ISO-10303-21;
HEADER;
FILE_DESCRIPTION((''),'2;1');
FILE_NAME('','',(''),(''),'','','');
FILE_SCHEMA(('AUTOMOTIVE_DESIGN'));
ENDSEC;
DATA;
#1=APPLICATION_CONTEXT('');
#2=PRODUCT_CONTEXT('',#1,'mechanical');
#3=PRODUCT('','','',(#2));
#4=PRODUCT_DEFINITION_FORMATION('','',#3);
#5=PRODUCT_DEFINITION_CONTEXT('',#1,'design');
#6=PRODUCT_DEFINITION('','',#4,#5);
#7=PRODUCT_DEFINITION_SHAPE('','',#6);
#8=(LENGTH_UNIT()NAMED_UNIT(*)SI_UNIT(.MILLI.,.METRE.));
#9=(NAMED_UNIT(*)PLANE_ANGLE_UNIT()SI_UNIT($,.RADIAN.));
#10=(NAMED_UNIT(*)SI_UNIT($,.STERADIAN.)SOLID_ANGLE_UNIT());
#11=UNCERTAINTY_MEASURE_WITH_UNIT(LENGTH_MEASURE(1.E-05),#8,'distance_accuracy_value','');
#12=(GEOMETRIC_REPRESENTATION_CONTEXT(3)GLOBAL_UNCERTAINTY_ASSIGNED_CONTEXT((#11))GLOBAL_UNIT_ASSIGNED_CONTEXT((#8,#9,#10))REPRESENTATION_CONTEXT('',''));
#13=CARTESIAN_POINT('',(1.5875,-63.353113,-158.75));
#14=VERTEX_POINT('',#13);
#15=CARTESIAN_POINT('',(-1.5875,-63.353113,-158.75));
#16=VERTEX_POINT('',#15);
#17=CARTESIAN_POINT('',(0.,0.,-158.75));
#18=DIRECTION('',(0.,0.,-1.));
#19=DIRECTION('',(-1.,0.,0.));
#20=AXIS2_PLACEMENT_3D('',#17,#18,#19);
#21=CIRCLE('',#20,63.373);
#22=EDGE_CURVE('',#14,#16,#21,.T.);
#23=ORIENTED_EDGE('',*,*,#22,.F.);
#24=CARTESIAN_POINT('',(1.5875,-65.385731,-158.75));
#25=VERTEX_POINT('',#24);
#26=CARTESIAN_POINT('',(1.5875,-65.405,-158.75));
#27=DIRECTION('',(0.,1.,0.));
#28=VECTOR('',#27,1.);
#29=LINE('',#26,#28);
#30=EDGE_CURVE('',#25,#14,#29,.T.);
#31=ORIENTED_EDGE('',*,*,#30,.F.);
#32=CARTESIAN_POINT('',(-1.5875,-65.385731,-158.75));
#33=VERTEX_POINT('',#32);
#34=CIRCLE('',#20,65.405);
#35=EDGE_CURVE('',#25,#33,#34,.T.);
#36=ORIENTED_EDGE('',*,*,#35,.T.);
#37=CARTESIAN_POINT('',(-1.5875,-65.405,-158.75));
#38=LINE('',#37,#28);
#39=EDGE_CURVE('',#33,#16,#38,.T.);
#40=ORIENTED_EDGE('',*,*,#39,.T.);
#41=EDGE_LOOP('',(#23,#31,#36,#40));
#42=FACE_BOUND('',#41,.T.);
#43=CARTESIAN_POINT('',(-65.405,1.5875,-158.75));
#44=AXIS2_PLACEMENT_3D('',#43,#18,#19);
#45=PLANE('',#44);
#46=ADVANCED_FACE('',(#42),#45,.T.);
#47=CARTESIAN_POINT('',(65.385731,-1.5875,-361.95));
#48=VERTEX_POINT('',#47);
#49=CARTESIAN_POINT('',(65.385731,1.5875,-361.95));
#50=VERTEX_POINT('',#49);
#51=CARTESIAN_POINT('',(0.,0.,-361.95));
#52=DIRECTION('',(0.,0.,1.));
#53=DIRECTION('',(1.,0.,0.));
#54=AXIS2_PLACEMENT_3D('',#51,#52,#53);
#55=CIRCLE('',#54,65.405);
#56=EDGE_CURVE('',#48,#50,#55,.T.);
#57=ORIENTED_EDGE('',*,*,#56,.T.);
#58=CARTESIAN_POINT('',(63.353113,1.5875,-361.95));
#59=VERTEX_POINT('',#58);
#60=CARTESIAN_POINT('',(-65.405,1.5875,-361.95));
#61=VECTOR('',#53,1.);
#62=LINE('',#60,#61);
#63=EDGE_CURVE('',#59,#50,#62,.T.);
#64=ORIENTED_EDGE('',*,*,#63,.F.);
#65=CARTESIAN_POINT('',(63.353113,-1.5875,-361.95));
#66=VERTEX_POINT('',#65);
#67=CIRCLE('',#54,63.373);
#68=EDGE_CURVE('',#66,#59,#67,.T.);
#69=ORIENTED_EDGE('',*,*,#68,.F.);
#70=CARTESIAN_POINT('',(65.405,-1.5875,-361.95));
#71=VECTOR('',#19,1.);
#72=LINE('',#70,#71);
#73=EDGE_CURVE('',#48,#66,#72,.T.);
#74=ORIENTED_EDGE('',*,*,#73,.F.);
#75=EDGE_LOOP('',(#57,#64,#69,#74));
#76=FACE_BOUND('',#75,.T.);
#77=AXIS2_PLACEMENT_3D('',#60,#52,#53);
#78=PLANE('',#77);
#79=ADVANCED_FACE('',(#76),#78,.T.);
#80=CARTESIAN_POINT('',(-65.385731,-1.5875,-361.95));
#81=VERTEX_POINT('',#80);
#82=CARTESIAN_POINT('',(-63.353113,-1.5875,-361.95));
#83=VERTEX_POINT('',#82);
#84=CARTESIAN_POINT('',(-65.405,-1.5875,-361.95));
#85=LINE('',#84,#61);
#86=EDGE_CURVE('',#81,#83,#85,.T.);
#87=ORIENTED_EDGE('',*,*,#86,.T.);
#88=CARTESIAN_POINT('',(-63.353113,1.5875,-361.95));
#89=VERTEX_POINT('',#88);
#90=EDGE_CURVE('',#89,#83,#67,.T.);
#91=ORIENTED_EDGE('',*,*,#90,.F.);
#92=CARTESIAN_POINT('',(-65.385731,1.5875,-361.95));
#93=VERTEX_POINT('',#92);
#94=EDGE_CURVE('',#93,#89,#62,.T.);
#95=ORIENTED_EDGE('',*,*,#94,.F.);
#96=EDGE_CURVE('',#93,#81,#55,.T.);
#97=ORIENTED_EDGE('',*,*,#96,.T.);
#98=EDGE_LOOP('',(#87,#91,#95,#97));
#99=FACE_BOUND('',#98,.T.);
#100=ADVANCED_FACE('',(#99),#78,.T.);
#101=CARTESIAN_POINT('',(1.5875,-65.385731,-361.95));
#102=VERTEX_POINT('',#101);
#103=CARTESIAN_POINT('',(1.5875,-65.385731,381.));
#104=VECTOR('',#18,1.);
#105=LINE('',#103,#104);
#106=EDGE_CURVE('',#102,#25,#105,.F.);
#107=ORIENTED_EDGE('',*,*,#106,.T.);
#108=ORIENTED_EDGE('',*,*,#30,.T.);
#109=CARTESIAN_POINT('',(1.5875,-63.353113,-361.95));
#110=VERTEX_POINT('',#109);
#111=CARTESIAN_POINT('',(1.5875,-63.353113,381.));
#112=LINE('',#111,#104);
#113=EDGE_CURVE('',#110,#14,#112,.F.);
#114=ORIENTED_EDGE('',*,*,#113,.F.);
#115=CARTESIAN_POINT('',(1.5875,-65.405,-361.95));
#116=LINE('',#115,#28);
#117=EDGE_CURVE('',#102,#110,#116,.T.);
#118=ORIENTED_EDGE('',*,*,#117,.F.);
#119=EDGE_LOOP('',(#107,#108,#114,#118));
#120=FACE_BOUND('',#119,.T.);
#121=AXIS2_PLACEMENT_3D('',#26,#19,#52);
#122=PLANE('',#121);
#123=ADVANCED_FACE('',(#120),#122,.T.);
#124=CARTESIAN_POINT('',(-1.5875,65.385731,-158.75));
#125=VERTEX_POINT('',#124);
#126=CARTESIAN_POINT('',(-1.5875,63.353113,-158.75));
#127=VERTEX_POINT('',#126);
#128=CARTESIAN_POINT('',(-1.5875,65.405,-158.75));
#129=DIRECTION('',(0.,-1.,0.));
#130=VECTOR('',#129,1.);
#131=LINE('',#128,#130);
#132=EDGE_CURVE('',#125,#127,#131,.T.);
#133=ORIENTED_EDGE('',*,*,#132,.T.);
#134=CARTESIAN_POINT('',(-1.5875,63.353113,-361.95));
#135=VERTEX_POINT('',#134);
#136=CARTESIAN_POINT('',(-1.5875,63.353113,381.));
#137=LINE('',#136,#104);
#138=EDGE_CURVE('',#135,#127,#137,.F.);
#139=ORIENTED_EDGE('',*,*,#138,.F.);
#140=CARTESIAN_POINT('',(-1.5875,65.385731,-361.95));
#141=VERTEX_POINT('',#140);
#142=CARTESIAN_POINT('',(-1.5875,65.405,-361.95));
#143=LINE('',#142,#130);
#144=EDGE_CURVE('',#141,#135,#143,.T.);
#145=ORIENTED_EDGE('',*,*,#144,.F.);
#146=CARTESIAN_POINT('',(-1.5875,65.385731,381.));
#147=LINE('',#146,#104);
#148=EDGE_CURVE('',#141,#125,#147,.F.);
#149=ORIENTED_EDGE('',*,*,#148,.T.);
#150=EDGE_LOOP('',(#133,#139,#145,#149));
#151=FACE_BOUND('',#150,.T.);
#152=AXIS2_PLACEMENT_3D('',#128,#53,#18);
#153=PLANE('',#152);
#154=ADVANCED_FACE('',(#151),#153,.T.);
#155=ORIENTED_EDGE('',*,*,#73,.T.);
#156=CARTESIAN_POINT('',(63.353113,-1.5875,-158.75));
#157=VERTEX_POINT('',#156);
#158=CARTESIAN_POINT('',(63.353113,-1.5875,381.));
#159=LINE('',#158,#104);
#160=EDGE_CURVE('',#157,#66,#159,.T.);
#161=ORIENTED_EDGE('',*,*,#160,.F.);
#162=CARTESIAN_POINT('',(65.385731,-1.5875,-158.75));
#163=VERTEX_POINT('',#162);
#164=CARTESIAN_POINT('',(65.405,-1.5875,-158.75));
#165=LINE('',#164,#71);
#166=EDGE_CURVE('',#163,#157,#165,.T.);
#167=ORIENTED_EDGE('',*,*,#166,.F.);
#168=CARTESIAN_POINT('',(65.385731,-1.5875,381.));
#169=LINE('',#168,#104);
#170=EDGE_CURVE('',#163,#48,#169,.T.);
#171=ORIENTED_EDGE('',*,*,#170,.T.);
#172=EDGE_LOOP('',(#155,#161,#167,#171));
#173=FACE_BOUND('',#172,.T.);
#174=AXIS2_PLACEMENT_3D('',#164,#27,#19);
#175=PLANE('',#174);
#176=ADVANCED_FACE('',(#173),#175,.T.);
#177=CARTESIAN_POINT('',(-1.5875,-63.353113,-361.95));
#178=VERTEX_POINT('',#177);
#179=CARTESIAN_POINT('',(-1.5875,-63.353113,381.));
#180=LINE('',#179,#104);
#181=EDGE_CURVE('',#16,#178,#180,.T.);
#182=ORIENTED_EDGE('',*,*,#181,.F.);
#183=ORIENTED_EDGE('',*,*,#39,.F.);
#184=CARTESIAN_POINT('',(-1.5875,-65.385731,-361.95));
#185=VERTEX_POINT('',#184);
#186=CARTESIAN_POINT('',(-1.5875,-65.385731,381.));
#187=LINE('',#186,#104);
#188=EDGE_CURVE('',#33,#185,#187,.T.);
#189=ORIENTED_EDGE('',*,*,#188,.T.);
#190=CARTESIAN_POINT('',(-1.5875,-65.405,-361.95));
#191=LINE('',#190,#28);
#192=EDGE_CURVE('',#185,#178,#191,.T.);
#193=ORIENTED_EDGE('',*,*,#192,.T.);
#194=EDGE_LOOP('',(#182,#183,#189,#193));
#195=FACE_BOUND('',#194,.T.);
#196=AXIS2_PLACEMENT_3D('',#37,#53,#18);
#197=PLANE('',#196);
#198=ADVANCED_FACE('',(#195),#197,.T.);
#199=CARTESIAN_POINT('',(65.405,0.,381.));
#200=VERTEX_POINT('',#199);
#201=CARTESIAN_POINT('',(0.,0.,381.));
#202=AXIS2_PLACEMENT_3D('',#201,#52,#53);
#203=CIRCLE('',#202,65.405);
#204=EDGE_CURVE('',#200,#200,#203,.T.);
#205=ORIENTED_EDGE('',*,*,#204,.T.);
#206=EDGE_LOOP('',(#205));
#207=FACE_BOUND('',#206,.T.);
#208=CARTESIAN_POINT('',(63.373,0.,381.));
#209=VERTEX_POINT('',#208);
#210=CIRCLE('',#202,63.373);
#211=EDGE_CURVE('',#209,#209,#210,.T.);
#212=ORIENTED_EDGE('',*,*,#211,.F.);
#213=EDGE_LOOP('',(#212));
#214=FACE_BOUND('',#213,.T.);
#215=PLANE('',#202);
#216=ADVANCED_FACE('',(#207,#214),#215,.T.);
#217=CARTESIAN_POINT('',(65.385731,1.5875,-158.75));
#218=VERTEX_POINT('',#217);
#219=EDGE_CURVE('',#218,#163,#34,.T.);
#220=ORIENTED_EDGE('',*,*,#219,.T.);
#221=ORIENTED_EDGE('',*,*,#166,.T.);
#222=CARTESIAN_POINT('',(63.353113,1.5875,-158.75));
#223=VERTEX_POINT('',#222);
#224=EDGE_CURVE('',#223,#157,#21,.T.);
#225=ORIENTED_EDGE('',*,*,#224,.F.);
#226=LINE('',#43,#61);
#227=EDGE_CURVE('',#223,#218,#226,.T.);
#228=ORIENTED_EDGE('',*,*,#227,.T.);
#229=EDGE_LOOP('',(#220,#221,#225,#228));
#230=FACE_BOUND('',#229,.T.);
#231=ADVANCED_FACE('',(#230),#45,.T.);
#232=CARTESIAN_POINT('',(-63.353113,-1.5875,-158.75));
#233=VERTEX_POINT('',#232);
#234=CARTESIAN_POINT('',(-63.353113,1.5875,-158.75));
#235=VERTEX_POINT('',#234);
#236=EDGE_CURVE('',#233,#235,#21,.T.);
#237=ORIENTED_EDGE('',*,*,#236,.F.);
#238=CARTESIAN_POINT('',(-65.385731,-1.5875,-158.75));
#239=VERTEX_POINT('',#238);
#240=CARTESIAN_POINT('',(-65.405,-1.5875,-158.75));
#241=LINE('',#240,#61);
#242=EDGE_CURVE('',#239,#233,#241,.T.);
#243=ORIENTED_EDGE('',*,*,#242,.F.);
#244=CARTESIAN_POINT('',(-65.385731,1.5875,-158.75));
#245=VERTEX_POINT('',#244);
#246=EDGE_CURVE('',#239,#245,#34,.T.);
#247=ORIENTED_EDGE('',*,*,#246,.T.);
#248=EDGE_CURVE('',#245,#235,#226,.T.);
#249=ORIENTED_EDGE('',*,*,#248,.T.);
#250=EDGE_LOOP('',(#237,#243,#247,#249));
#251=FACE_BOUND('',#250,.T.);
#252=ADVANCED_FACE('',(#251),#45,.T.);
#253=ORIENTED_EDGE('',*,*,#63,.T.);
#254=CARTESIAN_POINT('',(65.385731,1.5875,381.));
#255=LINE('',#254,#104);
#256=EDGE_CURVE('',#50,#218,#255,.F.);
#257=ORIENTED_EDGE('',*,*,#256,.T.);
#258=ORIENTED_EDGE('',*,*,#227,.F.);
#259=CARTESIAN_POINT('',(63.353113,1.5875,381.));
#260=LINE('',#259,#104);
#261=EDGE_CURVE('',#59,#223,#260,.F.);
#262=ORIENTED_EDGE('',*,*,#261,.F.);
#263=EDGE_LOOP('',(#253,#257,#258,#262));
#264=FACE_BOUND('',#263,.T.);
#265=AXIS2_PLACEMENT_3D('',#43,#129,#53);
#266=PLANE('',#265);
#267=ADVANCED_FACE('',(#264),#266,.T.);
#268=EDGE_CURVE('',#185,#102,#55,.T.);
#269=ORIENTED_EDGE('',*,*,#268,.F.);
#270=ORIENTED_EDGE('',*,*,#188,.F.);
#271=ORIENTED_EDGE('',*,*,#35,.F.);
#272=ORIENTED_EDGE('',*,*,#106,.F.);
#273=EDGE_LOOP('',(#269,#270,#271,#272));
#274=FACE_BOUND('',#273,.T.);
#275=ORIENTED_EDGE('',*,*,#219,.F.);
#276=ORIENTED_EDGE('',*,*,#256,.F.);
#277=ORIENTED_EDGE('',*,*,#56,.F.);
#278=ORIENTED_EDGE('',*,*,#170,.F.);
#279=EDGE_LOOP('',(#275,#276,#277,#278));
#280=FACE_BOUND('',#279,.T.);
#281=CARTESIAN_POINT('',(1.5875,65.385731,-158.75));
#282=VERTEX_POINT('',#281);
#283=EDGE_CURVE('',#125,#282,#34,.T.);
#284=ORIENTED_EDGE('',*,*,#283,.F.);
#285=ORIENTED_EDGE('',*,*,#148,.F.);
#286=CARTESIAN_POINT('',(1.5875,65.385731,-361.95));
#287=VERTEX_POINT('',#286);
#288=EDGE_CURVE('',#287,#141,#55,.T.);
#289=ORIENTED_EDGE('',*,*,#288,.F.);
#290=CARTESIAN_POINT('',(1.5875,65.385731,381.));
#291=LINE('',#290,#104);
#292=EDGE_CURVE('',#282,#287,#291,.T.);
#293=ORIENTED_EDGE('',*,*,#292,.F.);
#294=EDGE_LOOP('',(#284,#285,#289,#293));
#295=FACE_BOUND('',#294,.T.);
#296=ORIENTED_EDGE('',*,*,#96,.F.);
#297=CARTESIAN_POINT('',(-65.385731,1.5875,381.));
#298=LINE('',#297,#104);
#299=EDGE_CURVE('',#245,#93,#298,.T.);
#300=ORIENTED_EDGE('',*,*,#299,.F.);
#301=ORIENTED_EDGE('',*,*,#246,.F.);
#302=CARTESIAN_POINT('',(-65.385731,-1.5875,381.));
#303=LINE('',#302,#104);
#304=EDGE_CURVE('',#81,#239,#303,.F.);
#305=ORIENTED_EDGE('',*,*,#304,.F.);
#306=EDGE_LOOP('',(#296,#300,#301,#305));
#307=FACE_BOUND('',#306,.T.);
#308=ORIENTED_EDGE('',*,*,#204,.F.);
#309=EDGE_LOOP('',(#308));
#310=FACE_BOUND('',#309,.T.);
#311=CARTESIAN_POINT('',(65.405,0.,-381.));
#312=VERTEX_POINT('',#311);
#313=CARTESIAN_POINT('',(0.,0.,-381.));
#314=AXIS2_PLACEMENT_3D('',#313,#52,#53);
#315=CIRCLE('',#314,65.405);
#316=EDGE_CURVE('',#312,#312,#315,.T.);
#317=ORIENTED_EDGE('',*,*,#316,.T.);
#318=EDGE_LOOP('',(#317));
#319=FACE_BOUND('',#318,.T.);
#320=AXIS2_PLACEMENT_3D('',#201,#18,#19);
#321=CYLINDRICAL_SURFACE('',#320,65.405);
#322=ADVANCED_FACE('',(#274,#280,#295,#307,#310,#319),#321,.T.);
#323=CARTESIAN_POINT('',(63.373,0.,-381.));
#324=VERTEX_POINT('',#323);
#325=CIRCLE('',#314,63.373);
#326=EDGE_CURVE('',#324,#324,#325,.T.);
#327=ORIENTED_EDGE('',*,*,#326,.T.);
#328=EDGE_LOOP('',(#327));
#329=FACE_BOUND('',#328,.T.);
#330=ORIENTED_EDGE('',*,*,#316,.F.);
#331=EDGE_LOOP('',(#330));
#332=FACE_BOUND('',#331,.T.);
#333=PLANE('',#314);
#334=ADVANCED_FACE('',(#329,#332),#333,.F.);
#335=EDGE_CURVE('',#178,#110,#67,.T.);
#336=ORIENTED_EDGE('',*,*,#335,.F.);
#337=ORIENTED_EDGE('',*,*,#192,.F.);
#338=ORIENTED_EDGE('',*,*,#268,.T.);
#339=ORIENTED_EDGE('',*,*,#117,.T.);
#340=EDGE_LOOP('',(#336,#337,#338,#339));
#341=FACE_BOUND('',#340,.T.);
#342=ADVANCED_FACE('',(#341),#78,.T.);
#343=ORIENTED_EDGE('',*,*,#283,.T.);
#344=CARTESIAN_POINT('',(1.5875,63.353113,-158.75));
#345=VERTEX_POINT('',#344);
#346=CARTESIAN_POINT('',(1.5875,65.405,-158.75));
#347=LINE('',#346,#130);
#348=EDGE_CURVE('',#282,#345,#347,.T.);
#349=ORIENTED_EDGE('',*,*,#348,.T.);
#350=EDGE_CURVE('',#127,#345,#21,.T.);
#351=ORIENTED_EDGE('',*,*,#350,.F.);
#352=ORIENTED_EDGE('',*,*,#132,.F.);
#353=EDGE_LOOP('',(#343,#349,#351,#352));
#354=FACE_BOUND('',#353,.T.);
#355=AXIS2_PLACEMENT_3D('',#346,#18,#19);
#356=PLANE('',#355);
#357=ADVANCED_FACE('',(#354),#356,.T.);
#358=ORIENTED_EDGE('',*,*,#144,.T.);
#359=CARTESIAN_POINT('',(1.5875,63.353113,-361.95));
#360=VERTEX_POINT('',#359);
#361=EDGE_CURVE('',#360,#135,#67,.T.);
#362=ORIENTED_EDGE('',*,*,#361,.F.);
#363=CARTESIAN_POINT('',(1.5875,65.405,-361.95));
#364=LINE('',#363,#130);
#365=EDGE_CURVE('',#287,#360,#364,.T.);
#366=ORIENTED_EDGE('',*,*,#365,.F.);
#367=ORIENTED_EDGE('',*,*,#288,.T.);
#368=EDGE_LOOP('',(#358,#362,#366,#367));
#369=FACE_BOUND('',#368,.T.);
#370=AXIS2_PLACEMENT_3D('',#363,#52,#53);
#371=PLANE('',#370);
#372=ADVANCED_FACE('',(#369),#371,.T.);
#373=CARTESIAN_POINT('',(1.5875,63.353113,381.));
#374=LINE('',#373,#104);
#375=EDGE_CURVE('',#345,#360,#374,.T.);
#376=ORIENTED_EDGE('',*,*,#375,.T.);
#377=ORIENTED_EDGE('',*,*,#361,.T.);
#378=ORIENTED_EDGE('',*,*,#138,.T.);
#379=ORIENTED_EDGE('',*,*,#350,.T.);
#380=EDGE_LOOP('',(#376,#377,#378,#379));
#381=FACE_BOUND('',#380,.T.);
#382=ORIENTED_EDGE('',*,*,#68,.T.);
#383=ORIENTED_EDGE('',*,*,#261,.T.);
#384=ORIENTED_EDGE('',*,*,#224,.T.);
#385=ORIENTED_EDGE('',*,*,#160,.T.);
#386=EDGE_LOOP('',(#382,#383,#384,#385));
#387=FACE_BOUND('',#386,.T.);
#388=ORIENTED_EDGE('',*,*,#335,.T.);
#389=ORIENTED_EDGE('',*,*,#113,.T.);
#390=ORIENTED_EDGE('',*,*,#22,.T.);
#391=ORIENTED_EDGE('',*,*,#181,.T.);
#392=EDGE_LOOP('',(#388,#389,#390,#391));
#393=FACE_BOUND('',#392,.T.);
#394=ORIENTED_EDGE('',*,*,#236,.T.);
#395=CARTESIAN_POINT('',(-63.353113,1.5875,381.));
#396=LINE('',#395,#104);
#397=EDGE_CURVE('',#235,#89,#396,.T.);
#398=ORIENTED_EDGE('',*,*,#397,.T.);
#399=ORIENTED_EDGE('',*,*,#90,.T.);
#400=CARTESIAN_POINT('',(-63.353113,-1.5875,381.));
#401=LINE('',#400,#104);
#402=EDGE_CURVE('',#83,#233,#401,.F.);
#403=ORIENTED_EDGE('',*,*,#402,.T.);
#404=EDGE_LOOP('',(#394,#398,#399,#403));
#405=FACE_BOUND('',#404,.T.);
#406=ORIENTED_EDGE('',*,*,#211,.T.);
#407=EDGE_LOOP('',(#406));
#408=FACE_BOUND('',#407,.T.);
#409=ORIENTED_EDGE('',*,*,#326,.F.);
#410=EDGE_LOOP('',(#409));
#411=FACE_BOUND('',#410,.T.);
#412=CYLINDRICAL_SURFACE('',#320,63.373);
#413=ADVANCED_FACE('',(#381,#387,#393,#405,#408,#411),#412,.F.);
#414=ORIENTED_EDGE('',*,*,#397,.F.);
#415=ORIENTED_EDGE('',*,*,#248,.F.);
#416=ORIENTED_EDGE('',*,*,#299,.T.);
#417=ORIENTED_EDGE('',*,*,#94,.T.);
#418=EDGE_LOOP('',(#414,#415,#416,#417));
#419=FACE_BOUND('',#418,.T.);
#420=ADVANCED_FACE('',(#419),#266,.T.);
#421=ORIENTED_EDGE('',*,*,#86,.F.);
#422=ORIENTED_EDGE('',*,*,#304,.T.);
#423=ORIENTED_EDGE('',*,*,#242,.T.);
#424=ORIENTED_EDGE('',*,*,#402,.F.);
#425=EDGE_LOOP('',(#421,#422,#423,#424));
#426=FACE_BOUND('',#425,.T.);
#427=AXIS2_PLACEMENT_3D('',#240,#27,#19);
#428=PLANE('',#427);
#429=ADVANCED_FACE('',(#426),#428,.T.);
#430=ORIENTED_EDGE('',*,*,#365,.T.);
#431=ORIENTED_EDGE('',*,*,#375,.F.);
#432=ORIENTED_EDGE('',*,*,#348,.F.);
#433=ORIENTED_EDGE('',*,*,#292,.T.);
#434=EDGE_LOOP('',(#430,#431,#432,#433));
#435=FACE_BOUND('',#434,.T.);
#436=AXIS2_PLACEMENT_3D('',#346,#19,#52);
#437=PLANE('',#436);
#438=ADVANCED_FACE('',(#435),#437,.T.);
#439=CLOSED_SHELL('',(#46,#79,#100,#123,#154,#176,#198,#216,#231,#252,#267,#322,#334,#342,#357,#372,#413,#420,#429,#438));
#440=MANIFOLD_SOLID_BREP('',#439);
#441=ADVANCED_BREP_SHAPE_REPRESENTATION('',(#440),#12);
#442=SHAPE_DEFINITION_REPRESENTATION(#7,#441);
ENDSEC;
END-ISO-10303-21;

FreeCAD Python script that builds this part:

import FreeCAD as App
import Part
import Sketcher

V = App.Vector
Q = App.Units.Quantity

doc = App.newDocument("Part")
body = doc.addObject("PartDesign::Body", "Body")

sketch1 = body.newObject("Sketcher::SketchObject", "Sketch")
sketch1.AttachmentSupport = (doc.getObject("XY_Plane"), [""])
sketch1.MapMode = "FlatFace"
sketch1.addGeometry([
    Part.Circle(V(0, 0, 0), V(0, 0, 1), 65.405),
    Part.Circle(V(0, 0, 0), V(0, 0, 1), 63.373),
], False)
sketch1.addConstraint([
    Sketcher.Constraint("Coincident", 0, 3, -1, 1),
    Sketcher.Constraint("Coincident", 1, 3, -1, 1),
    Sketcher.Constraint("Diameter", 0, Q("5.15 in")),
    Sketcher.Constraint("Diameter", 1, Q("4.99 in")),
])
pad1 = body.newObject("PartDesign::Pad", "Pad")
pad1.Profile = sketch1
pad1.Length = Q("30 in")
pad1.Midplane = True

sketch2 = body.newObject("Sketcher::SketchObject", "Sketch001")
sketch2.AttachmentSupport = (doc.getObject("XZ_Plane"), [""])
sketch2.MapMode = "FlatFace"
sketch2.addGeometry([
    Part.LineSegment(V(-1.5875, -361.95, 0), V(-1.5875, -158.75, 0)),
    Part.LineSegment(V(-1.5875, -158.75, 0), V(1.5875, -158.75, 0)),
    Part.LineSegment(V(1.5875, -158.75, 0), V(1.5875, -361.95, 0)),
    Part.LineSegment(V(1.5875, -361.95, 0), V(-1.5875, -361.95, 0)),
], False)
sketch2.addConstraint([
    Sketcher.Constraint("Coincident", 0, 2, 1, 1),
    Sketcher.Constraint("Coincident", 1, 2, 2, 1),
    Sketcher.Constraint("Coincident", 2, 2, 3, 1),
    Sketcher.Constraint("Coincident", 3, 2, 0, 1),
    Sketcher.Constraint("Vertical", 0),
    Sketcher.Constraint("Horizontal", 1),
    Sketcher.Constraint("Vertical", 2),
    Sketcher.Constraint("Horizontal", 3),
    Sketcher.Constraint("DistanceY", 0, 1, 0, 2, Q("8 in")),
    Sketcher.Constraint("DistanceX", 1, 1, 1, 2, Q("0.125 in")),
    Sketcher.Constraint("DistanceY", 0, 2, -1, 1, Q("6.25 in")),
    Sketcher.Constraint("DistanceX", 0, 2, -1, 1, Q("0.0625 in")),
])
pocket1 = body.newObject("PartDesign::Pocket", "Pocket")
pocket1.Profile = sketch2
pocket1.Type = "ThroughAll"
doc.recompute()

polarpattern = body.newObject("PartDesign::PolarPattern", "PolarPattern")
polarpattern.Originals = [pocket1]
polarpattern.Axis = (doc.getObject("Z_Axis"), [""])
polarpattern.Angle = 360
polarpattern.Occurrences = 4
body.Tip = polarpattern

doc.recompute()
